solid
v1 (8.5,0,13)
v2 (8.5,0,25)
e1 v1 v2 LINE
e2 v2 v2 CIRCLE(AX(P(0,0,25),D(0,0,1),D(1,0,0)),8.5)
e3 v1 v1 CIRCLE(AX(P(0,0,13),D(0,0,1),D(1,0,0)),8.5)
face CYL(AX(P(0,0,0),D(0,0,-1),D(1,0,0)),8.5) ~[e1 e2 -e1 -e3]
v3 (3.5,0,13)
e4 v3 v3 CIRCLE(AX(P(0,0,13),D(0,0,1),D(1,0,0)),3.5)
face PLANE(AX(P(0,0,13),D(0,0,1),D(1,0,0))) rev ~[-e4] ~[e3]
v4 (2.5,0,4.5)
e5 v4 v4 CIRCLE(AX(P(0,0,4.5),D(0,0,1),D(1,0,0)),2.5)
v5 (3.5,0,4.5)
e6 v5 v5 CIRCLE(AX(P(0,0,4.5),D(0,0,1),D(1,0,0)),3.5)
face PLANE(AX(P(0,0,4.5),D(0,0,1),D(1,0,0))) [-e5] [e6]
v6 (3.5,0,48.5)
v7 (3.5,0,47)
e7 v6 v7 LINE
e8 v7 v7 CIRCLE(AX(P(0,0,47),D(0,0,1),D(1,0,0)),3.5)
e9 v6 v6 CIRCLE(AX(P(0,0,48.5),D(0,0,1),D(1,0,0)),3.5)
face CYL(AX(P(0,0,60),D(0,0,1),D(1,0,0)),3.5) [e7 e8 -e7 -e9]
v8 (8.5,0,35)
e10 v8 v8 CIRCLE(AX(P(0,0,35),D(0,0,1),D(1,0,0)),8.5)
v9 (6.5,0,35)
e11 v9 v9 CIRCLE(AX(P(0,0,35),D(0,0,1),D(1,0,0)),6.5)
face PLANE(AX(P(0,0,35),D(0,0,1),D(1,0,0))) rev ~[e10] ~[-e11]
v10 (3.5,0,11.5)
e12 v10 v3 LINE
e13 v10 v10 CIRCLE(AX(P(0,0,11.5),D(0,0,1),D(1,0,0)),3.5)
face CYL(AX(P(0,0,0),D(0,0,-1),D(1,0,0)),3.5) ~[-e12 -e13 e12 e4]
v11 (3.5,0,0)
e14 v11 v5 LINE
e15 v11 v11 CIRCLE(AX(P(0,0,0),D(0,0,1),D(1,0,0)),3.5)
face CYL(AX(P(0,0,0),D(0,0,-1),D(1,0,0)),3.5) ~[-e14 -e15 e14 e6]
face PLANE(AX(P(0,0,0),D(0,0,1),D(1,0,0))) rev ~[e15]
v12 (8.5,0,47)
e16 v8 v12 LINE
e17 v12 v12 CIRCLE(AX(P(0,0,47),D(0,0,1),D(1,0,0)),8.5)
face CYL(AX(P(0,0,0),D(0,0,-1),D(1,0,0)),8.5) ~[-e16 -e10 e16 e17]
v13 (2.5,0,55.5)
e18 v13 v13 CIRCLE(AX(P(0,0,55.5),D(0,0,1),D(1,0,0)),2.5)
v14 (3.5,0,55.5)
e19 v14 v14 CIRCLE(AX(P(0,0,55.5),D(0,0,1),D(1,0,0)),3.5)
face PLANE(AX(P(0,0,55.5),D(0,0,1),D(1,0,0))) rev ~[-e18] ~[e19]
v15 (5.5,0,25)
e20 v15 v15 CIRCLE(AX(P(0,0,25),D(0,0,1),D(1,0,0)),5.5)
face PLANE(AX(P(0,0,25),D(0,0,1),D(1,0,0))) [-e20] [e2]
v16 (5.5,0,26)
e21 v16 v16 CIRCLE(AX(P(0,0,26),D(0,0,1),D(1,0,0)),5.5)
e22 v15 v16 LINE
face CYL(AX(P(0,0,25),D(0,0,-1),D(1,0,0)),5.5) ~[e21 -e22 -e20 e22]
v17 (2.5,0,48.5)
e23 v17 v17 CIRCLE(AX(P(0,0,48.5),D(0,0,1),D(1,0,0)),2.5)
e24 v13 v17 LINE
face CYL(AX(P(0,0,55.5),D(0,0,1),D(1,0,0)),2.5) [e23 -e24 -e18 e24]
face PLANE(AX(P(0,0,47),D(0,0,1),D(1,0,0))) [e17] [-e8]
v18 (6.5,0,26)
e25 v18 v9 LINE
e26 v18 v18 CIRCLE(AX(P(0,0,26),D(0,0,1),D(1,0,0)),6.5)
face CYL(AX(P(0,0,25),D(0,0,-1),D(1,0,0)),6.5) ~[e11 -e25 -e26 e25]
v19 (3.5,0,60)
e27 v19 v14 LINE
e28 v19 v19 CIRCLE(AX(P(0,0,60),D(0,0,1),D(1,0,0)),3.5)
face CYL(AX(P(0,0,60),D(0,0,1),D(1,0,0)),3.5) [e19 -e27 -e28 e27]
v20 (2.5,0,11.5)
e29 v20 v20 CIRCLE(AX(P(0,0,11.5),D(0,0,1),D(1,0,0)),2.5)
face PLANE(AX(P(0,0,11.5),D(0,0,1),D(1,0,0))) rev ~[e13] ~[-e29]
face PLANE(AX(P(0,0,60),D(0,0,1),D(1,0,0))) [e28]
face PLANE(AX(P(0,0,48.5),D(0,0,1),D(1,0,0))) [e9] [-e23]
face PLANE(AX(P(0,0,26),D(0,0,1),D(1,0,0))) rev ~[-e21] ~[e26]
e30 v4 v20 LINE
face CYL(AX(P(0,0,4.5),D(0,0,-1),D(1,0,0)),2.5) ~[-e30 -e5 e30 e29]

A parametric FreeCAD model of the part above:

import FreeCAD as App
import Part
import Sketcher

V = App.Vector

doc = App.newDocument("Part")
params = doc.addObject("Spreadsheet::Sheet", "Params")
for row, (alias, value) in enumerate([
    ("sketch1_diameter", "17 mm"),
    ("pad1_length", "60 mm"),
    ("sketch2_diameter", "7 mm"),
    ("sketch2_diameter2", "17 mm"),
    ("pocket1_length", "13 mm"),
    ("sketch3_diameter", "7 mm"),
    ("sketch3_diameter2", "17 mm"),
    ("pocket2_length", "13 mm"),
    ("sketch4_diameter", "7 mm"),
    ("sketch4_diameter2", "5 mm"),
    ("pocket3_length", "7 mm"),
    ("sketch5_diameter", "7 mm"),
    ("sketch5_diameter2", "5 mm"),
    ("pocket4_length", "7 mm"),
    ("sketch6_diameter", "17 mm"),
    ("sketch6_diameter2", "13 mm"),
    ("pocket5_length", "10 mm"),
    ("sketch7_diameter", "13 mm"),
    ("sketch7_diameter2", "11 mm"),
    ("pocket6_length", "1 mm"),
    ("sketch8_diameter", "13 mm"),
    ("sketch8_diameter2", "11 mm"),
    ("pocket7_length", "1 mm"),
    ("sketch9_diameter", "13 mm"),
    ("sketch9_diameter2", "11 mm"),
    ("pocket8_length", "1 mm"),
    ("sketch10_diameter", "13 mm"),
    ("sketch10_diameter2", "11 mm"),
    ("pocket9_length", "1 mm"),
    ("sketch11_diameter", "13 mm"),
    ("sketch11_diameter2", "11 mm"),
    ("pocket10_length", "1 mm"),
], start=1):
    params.set(f"A{row}", alias)
    params.set(f"B{row}", "=" + value)
    params.setAlias(f"B{row}", alias)

body = doc.addObject("PartDesign::Body", "Body")

sketch1 = body.newObject("Sketcher::SketchObject", "Sketch")
sketch1.AttachmentSupport = (doc.getObject("XY_Plane"), [""])
sketch1.MapMode = "FlatFace"
sketch1.addGeometry(Part.Circle(V(0, 0, 0), V(0, 0, 1), 8), False)
sketch1.addConstraint([
    Sketcher.Constraint("Coincident", 0, 3, -1, 1),
    Sketcher.Constraint("Diameter", 0, 17.0),
])
sketch1.setExpression("Constraints[1]", "Params.sketch1_diameter")
pad1 = body.newObject("PartDesign::Pad", "Pad")
pad1.Profile = sketch1
pad1.setExpression("Length", "Params.pad1_length")

sketch2 = body.newObject("Sketcher::SketchObject", "Sketch001")
sketch2.AttachmentSupport = (doc.getObject("XY_Plane"), [""])
sketch2.MapMode = "FlatFace"
sketch2.addGeometry([
    Part.Circle(V(0, 0, 0), V(0, 0, 1), 8.5),
    Part.Circle(V(0, 0, 0), V(0, 0, 1), 3.5),
], False)
sketch2.addConstraint([
    Sketcher.Constraint("Coincident", 0, 3, -1, 1),
    Sketcher.Constraint("Coincident", 1, 3, -1, 1),
    Sketcher.Constraint("Diameter", 1, 7.0),
    Sketcher.Constraint("Diameter", 0, 17.0),
])
sketch2.setExpression("Constraints[2]", "Params.sketch2_diameter")
sketch2.setExpression("Constraints[3]", "Params.sketch2_diameter2")
pocket1 = body.newObject("PartDesign::Pocket", "Pocket")
pocket1.Profile = sketch2
pocket1.setExpression("Length", "Params.pocket1_length")
pocket1.Reversed = True

sketch3 = body.newObject("Sketcher::SketchObject", "Sketch002")
sketch3.AttachmentSupport = (doc.getObject("XY_Plane"), [""])
sketch3.MapMode = "FlatFace"
sketch3.AttachmentOffset = App.Placement(V(0, 0, 60), App.Rotation())
sketch3.addGeometry([
    Part.Circle(V(0, 0, 0), V(0, 0, 1), 8.5),
    Part.Circle(V(0, 0, 0), V(0, 0, 1), 3.5),
], False)
sketch3.addConstraint([
    Sketcher.Constraint("Coincident", 0, 3, -1, 1),
    Sketcher.Constraint("Coincident", 1, 3, -1, 1),
    Sketcher.Constraint("Diameter", 1, 7.0),
    Sketcher.Constraint("Diameter", 0, 17.0),
])
sketch3.setExpression("Constraints[2]", "Params.sketch3_diameter")
sketch3.setExpression("Constraints[3]", "Params.sketch3_diameter2")
pocket2 = body.newObject("PartDesign::Pocket", "Pocket001")
pocket2.Profile = sketch3
pocket2.setExpression("Length", "Params.pocket2_length")

sketch4 = body.newObject("Sketcher::SketchObject", "Sketch003")
sketch4.AttachmentSupport = (doc.getObject("XY_Plane"), [""])
sketch4.MapMode = "FlatFace"
sketch4.AttachmentOffset = App.Placement(V(0, 0, 4.5), App.Rotation())
sketch4.addGeometry([
    Part.Circle(V(0, 0, 0), V(0, 0, 1), 3.5),
    Part.Circle(V(0, 0, 0), V(0, 0, 1), 2.5),
], False)
sketch4.addConstraint([
    Sketcher.Constraint("Coincident", 0, 3, -1, 1),
    Sketcher.Constraint("Coincident", 1, 3, -1, 1),
    Sketcher.Constraint("Diameter", 0, 7.0),
    Sketcher.Constraint("Diameter", 1, 5.0),
])
sketch4.setExpression("Constraints[2]", "Params.sketch4_diameter")
sketch4.setExpression("Constraints[3]", "Params.sketch4_diameter2")
pocket3 = body.newObject("PartDesign::Pocket", "Pocket002")
pocket3.Profile = sketch4
pocket3.setExpression("Length", "Params.pocket3_length")
pocket3.Reversed = True

sketch5 = body.newObject("Sketcher::SketchObject", "Sketch004")
sketch5.AttachmentSupport = (doc.getObject("XY_Plane"), [""])
sketch5.MapMode = "FlatFace"
sketch5.AttachmentOffset = App.Placement(V(0, 0, 55.5), App.Rotation())
sketch5.addGeometry([
    Part.Circle(V(0, 0, 0), V(0, 0, 1), 3.5),
    Part.Circle(V(0, 0, 0), V(0, 0, 1), 2.5),
], False)
sketch5.addConstraint([
    Sketcher.Constraint("Coincident", 0, 3, -1, 1),
    Sketcher.Constraint("Coincident", 1, 3, -1, 1),
    Sketcher.Constraint("Diameter", 0, 7.0),
    Sketcher.Constraint("Diameter", 1, 5.0),
])
sketch5.setExpression("Constraints[2]", "Params.sketch5_diameter")
sketch5.setExpression("Constraints[3]", "Params.sketch5_diameter2")
pocket4 = body.newObject("PartDesign::Pocket", "Pocket003")
pocket4.Profile = sketch5
pocket4.setExpression("Length", "Params.pocket4_length")

sketch6 = body.newObject("Sketcher::SketchObject", "Sketch005")
sketch6.AttachmentSupport = (doc.getObject("XY_Plane"), [""])
sketch6.MapMode = "FlatFace"
sketch6.AttachmentOffset = App.Placement(V(0, 0, 25), App.Rotation())
sketch6.addGeometry([
    Part.Circle(V(0, 0, 0), V(0, 0, 1), 8),
    Part.Circle(V(0, 0, 0), V(0, 0, 1), 6),
], False)
sketch6.addConstraint([
    Sketcher.Constraint("Coincident", 0, 3, -1, 1),
    Sketcher.Constraint("Coincident", 1, 3, -1, 1),
    Sketcher.Constraint("Diameter", 0, 17.0),
    Sketcher.Constraint("Diameter", 1, 13.0),
])
sketch6.setExpression("Constraints[2]", "Params.sketch6_diameter")
sketch6.setExpression("Constraints[3]", "Params.sketch6_diameter2")
pocket5 = body.newObject("PartDesign::Pocket", "Pocket004")
pocket5.Profile = sketch6
pocket5.setExpression("Length", "Params.pocket5_length")
pocket5.Reversed = True

sketch7 = body.newObject("Sketcher::SketchObject", "Sketch006")
sketch7.AttachmentSupport = (doc.getObject("XY_Plane"), [""])
sketch7.MapMode = "FlatFace"
sketch7.AttachmentOffset = App.Placement(V(0, 0, 25), App.Rotation())
sketch7.addGeometry([
    Part.Circle(V(0, 0, 0), V(0, 0, 1), 6),
    Part.Circle(V(0, 0, 0), V(0, 0, 1), 6),
], False)
sketch7.addConstraint([
    Sketcher.Constraint("Coincident", 0, 3, -1, 1),
    Sketcher.Constraint("Coincident", 1, 3, -1, 1),
    Sketcher.Constraint("Diameter", 0, 13.0),
    Sketcher.Constraint("Diameter", 1, 11.0),
])
sketch7.setExpression("Constraints[2]", "Params.sketch7_diameter")
sketch7.setExpression("Constraints[3]", "Params.sketch7_diameter2")
pocket6 = body.newObject("PartDesign::Pocket", "Pocket005")
pocket6.Profile = sketch7
pocket6.setExpression("Length", "Params.pocket6_length")
pocket6.Reversed = True

sketch8 = body.newObject("Sketcher::SketchObject", "Sketch007")
sketch8.AttachmentSupport = (doc.getObject("XY_Plane"), [""])
sketch8.MapMode = "FlatFace"
sketch8.AttachmentOffset = App.Placement(V(0, 0, 25), App.Rotation())
sketch8.addGeometry([
    Part.Circle(V(0, 0, 0), V(0, 0, 1), 6),
    Part.Circle(V(0, 0, 0), V(0, 0, 1), 6),
], False)
sketch8.addConstraint([
    Sketcher.Constraint("Coincident", 0, 3, -1, 1),
    Sketcher.Constraint("Coincident", 1, 3, -1, 1),
    Sketcher.Constraint("Diameter", 0, 13.0),
    Sketcher.Constraint("Diameter", 1, 11.0),
])
sketch8.setExpression("Constraints[2]", "Params.sketch8_diameter")
sketch8.setExpression("Constraints[3]", "Params.sketch8_diameter2")
pocket7 = body.newObject("PartDesign::Pocket", "Pocket006")
pocket7.Profile = sketch8
pocket7.setExpression("Length", "Params.pocket7_length")
pocket7.Reversed = True

sketch9 = body.newObject("Sketcher::SketchObject", "Sketch008")
sketch9.AttachmentSupport = (doc.getObject("XY_Plane"), [""])
sketch9.MapMode = "FlatFace"
sketch9.AttachmentOffset = App.Placement(V(0, 0, 25), App.Rotation())
sketch9.addGeometry([
    Part.Circle(V(0, 0, 0), V(0, 0, 1), 6),
    Part.Circle(V(0, 0, 0), V(0, 0, 1), 6),
], False)
sketch9.addConstraint([
    Sketcher.Constraint("Coincident", 0, 3, -1, 1),
    Sketcher.Constraint("Coincident", 1, 3, -1, 1),
    Sketcher.Constraint("Diameter", 0, 13.0),
    Sketcher.Constraint("Diameter", 1, 11.0),
])
sketch9.setExpression("Constraints[2]", "Params.sketch9_diameter")
sketch9.setExpression("Constraints[3]", "Params.sketch9_diameter2")
pocket8 = body.newObject("PartDesign::Pocket", "Pocket007")
pocket8.Profile = sketch9
pocket8.setExpression("Length", "Params.pocket8_length")
pocket8.Reversed = True

sketch10 = body.newObject("Sketcher::SketchObject", "Sketch009")
sketch10.AttachmentSupport = (doc.getObject("XY_Plane"), [""])
sketch10.MapMode = "FlatFace"
sketch10.AttachmentOffset = App.Placement(V(0, 0, 25), App.Rotation())
sketch10.addGeometry([
    Part.Circle(V(0, 0, 0), V(0, 0, 1), 6),
    Part.Circle(V(0, 0, 0), V(0, 0, 1), 6),
], False)
sketch10.addConstraint([
    Sketcher.Constraint("Coincident", 0, 3, -1, 1),
    Sketcher.Constraint("Coincident", 1, 3, -1, 1),
    Sketcher.Constraint("Diameter", 0, 13.0),
    Sketcher.Constraint("Diameter", 1, 11.0),
])
sketch10.setExpression("Constraints[2]", "Params.sketch10_diameter")
sketch10.setExpression("Constraints[3]", "Params.sketch10_diameter2")
pocket9 = body.newObject("PartDesign::Pocket", "Pocket008")
pocket9.Profile = sketch10
pocket9.setExpression("Length", "Params.pocket9_length")
pocket9.Reversed = True

sketch11 = body.newObject("Sketcher::SketchObject", "Sketch010")
sketch11.AttachmentSupport = (doc.getObject("XY_Plane"), [""])
sketch11.MapMode = "FlatFace"
sketch11.AttachmentOffset = App.Placement(V(0, 0, 25), App.Rotation())
sketch11.addGeometry([
    Part.Circle(V(0, 0, 0), V(0, 0, 1), 6),
    Part.Circle(V(0, 0, 0), V(0, 0, 1), 6),
], False)
sketch11.addConstraint([
    Sketcher.Constraint("Coincident", 0, 3, -1, 1),
    Sketcher.Constraint("Coincident", 1, 3, -1, 1),
    Sketcher.Constraint("Diameter", 0, 13.0),
    Sketcher.Constraint("Diameter", 1, 11.0),
])
sketch11.setExpression("Constraints[2]", "Params.sketch11_diameter")
sketch11.setExpression("Constraints[3]", "Params.sketch11_diameter2")
pocket10 = body.newObject("PartDesign::Pocket", "Pocket009")
pocket10.Profile = sketch11
pocket10.setExpression("Length", "Params.pocket10_length")
pocket10.Reversed = True

doc.recompute()
